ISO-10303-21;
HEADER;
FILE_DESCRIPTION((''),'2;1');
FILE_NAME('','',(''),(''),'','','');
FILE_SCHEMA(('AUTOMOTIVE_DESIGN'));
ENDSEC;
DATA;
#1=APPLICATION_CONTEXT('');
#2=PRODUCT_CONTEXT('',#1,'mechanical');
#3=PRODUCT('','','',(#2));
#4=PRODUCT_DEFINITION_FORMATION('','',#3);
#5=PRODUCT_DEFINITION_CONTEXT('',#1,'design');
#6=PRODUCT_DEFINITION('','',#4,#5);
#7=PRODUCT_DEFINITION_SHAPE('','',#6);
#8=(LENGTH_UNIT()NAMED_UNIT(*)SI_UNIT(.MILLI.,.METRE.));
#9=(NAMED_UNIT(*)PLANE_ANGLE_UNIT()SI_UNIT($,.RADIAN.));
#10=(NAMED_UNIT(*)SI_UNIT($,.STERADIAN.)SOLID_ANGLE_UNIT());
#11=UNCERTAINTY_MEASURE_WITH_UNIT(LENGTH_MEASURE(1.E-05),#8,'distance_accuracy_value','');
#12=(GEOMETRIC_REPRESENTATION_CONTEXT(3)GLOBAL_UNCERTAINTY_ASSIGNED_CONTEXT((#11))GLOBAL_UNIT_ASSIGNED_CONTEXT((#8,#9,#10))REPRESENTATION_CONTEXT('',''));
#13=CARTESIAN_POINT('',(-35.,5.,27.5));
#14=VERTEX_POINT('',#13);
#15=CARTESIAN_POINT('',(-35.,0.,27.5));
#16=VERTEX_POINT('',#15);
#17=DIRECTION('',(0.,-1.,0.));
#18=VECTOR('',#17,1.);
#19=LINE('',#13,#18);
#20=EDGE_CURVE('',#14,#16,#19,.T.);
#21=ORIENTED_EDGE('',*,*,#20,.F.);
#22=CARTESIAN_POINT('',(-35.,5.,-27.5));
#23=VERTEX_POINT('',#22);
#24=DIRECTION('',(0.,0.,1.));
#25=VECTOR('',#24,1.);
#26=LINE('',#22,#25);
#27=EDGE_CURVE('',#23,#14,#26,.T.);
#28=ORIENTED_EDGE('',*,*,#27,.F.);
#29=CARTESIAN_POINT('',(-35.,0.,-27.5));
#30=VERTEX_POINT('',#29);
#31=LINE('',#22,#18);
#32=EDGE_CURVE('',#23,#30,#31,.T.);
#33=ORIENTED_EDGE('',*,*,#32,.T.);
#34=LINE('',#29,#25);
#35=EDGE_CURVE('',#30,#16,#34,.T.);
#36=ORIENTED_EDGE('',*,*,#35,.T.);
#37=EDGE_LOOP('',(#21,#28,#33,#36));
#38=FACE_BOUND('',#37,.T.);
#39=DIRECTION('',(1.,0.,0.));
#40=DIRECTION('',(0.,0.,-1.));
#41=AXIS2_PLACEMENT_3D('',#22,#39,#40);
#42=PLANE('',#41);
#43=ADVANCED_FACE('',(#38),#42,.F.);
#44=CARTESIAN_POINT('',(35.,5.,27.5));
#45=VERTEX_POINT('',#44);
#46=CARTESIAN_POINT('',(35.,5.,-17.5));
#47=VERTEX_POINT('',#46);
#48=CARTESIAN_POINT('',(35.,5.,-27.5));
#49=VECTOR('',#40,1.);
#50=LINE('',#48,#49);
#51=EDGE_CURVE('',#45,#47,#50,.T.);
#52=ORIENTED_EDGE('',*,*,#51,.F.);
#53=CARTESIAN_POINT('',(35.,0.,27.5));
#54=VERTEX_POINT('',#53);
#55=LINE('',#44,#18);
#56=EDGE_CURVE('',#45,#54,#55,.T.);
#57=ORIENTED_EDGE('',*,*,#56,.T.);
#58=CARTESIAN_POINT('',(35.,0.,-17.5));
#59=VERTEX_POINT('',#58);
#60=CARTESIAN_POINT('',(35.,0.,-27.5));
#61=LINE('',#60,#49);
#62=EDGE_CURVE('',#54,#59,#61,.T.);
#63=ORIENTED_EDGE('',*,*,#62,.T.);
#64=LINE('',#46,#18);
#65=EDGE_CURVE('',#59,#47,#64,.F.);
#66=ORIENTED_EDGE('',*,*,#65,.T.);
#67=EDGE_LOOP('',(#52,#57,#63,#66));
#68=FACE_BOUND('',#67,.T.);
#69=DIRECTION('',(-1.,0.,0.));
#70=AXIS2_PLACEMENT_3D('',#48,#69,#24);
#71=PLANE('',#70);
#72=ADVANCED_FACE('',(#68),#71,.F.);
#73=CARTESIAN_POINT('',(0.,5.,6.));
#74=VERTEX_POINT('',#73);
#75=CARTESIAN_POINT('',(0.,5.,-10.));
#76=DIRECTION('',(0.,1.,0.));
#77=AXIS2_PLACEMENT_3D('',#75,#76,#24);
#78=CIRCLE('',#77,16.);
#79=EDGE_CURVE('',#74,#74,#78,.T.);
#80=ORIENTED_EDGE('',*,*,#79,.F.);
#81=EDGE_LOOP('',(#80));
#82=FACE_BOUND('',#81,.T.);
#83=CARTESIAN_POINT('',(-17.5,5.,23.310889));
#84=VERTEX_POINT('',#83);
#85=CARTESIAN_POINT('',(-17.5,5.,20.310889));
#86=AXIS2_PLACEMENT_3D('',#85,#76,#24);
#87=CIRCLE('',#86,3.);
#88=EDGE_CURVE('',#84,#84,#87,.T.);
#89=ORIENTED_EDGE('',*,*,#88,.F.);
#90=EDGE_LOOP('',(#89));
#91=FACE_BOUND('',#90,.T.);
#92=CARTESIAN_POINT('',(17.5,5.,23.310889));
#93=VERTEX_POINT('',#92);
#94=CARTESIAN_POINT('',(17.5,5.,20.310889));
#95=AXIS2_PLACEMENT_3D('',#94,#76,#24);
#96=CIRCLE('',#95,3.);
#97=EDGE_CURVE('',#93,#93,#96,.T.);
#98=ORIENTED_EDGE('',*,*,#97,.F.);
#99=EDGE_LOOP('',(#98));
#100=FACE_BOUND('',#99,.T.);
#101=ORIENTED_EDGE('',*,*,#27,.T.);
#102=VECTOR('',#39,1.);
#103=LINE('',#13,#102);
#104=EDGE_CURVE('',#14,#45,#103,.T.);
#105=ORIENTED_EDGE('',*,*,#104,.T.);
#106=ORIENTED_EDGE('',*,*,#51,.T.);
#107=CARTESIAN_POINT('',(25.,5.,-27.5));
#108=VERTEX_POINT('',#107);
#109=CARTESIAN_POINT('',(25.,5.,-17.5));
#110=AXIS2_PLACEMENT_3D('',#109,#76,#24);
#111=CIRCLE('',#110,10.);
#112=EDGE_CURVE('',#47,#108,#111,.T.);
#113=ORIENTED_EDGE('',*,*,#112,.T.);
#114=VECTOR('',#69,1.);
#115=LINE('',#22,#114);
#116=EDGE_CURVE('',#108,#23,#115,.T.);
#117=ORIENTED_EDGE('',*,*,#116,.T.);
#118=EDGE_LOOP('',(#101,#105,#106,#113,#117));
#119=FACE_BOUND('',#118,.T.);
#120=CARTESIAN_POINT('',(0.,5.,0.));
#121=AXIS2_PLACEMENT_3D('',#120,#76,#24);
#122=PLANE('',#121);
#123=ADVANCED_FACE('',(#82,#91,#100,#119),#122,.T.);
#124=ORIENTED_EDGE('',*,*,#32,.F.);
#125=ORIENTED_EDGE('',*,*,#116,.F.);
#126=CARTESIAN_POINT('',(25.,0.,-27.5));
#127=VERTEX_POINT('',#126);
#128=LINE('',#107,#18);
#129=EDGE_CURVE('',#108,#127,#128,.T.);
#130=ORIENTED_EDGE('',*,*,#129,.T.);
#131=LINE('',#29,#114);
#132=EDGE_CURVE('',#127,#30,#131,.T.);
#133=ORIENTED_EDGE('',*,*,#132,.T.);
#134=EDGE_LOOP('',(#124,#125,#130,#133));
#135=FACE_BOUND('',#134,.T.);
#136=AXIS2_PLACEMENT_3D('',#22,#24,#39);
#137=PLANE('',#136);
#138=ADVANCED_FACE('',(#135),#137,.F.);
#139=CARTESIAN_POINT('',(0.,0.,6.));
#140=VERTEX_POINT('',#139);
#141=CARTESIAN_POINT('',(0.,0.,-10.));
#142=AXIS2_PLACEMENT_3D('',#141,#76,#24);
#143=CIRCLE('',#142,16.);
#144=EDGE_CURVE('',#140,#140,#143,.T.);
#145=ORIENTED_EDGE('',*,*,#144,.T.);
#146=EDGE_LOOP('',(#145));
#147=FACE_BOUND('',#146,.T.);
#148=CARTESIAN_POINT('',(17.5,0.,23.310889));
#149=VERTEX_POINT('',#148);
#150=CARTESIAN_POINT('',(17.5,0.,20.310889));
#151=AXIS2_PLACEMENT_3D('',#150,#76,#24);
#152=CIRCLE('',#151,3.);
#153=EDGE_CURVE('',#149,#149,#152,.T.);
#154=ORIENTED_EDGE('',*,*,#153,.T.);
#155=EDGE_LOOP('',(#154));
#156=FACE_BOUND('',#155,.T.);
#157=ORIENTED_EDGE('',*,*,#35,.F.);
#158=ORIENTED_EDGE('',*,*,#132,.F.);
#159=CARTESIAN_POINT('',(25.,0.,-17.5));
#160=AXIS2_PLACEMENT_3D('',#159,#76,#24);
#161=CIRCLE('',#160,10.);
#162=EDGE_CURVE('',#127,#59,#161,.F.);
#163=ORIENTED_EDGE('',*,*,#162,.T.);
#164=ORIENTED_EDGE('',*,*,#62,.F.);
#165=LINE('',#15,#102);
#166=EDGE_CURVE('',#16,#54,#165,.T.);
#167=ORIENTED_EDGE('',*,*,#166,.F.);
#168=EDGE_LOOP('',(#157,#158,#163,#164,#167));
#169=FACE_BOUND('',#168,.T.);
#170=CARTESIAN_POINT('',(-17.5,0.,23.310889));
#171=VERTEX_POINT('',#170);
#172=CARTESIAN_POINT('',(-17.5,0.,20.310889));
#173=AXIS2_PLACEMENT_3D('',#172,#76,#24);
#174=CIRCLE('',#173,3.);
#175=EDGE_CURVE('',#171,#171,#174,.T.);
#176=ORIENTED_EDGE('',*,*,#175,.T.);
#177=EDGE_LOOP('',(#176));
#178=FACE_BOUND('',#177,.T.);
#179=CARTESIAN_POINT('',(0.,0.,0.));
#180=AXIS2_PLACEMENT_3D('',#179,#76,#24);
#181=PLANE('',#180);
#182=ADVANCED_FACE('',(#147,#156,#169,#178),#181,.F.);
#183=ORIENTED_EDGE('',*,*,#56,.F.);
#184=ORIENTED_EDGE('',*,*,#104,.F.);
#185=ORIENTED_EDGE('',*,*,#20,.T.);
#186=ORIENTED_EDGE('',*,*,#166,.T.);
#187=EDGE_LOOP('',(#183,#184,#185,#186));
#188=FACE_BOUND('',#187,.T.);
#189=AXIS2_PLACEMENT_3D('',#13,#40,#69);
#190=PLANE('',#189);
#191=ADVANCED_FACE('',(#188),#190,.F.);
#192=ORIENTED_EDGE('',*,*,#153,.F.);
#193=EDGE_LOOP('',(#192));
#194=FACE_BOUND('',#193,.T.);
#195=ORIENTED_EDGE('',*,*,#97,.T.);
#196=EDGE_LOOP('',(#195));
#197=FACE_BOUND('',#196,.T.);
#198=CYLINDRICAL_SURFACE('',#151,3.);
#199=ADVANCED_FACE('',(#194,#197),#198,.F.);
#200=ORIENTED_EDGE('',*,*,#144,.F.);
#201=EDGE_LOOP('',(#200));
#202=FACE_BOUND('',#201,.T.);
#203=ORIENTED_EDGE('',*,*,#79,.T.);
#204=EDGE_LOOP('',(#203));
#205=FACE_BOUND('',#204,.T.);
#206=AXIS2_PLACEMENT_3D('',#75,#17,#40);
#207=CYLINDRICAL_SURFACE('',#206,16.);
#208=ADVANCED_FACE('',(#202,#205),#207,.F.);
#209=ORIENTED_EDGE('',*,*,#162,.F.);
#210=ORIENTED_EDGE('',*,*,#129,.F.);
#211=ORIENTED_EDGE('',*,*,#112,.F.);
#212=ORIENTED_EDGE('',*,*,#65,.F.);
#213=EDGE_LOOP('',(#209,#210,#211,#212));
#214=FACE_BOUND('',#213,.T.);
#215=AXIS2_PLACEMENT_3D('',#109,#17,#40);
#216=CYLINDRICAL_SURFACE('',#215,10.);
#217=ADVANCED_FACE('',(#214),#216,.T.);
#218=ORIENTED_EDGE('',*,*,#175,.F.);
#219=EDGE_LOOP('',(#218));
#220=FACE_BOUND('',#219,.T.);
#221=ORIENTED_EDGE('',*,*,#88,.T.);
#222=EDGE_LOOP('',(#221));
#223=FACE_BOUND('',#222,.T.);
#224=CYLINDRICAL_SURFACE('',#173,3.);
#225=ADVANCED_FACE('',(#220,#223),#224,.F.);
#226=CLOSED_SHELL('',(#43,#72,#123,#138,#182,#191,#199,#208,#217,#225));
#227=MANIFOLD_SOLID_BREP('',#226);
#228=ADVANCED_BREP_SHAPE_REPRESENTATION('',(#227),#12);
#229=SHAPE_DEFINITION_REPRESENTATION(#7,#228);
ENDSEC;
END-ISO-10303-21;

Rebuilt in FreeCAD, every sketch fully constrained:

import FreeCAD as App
import Part
import Sketcher

V = App.Vector
Q = App.Units.Quantity


def edges_at(feature, points):
    """Names of the edges that pass closest to the given points."""
    edges = feature.Shape.Edges
    near = lambda p: min(range(len(edges)), key=lambda i: edges[i].distToShape(Part.Vertex(*p))[0])
    return sorted({f"Edge{near(p) + 1}" for p in points})


def add_polygon(sketch, points):
    """Adds a closed chain of lines whose ends are joined by coincident constraints."""
    first, n = sketch.GeometryCount, len(points)
    for a, b in zip(points, points[1:] + points[:1]):
        sketch.addGeometry(Part.LineSegment(App.Vector(*a, 0), App.Vector(*b, 0)), False)
    for i in range(n):
        sketch.addConstraint(Sketcher.Constraint("Coincident", first + i, 2, first + (i + 1) % n, 1))

doc = App.newDocument("Part")
body = doc.addObject("PartDesign::Body", "Body")

sketch1 = doc.addObject("Sketcher::SketchObject", "Sketch")
body.addObject(sketch1)
sketch1.AttachmentSupport = (doc.XZ_Plane, [""])
sketch1.MapMode = "FlatFace"
add_polygon(sketch1, [(-35, -28), (-35, 28), (35, 28), (35, -28)])
sketch1.addGeometry(Part.Circle(V(0, -10, 0), V(0, 0, 1), 16), False)
sketch1.addConstraint([
    Sketcher.Constraint("Vertical", 0),
    Sketcher.Constraint("Horizontal", 1),
    Sketcher.Constraint("Vertical", 2),
    Sketcher.Constraint("Horizontal", 3),
    Sketcher.Constraint("Symmetric", 0, 2, 2, 2, -1, 1),
    Sketcher.Constraint("PointOnObject", 4, 3, -2),
    Sketcher.Constraint("Diameter", 4, Q("32 mm")),
    Sketcher.Constraint("DistanceX", 1, 1, 1, 2, Q("70 mm")),
    Sketcher.Constraint("DistanceY", 0, 1, 0, 2, Q("55 mm")),
    Sketcher.Constraint("DistanceY", 4, 3, -1, 1, Q("10 mm")),
])
pad1 = doc.addObject("PartDesign::Pad", "Pad")
body.addObject(pad1)
pad1.Profile = sketch1
pad1.Length = 5
pad1.Reversed = True

sketch2 = doc.addObject("Sketcher::SketchObject", "Sketch001")
body.addObject(sketch2)
sketch2.AttachmentSupport = (doc.XZ_Plane, [""])
sketch2.MapMode = "FlatFace"
sketch2.AttachmentOffset = App.Placement(V(0, 0, -5), App.Rotation())
sketch2.addGeometry([
    Part.Circle(V(-17.5, 20.3, 0), V(0, 0, 1), 3),
    Part.Circle(V(17.5, 20.3, 0), V(0, 0, 1), 3),
], False)
sketch2.addConstraint([
    Sketcher.Constraint("Equal", 0, 1),
    Sketcher.Constraint("Symmetric", 0, 3, 1, 3, -2),
    Sketcher.Constraint("Diameter", 0, Q("6 mm")),
    Sketcher.Constraint("DistanceX", 0, 3, 1, 3, Q("35 mm")),
    Sketcher.Constraint("DistanceY", -1, 1, 0, 3, Q("20.310889 mm")),
])
pocket1 = doc.addObject("PartDesign::Pocket", "Pocket")
body.addObject(pocket1)
pocket1.Profile = sketch2
pocket1.Type = "ThroughAll"
pocket1.Reversed = True
doc.recompute()

fillet = doc.addObject("PartDesign::Fillet", "Fillet")
body.addObject(fillet)
fillet.Base = (pocket1, edges_at(pocket1, [(35, 2.5, -27.5)]))
fillet.Radius = 10

doc.recompute()
